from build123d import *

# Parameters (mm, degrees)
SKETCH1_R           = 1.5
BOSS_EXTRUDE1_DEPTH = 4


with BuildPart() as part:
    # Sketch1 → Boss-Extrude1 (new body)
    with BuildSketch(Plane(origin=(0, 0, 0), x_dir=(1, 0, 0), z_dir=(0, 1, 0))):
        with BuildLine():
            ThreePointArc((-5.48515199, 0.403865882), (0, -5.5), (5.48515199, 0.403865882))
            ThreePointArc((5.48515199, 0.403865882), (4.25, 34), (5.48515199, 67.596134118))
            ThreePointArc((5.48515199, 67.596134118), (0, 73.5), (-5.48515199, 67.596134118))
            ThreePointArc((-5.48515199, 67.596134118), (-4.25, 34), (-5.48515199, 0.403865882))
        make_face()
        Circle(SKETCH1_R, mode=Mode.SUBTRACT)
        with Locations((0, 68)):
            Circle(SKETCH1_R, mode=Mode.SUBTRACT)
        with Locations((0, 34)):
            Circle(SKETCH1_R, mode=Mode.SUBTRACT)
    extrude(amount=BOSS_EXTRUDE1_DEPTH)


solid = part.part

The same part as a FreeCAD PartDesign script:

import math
import FreeCAD as App
import Part
import Sketcher
Q = App.Units.Quantity

doc = App.newDocument("Part")
params = doc.addObject("Spreadsheet::Sheet", "Params")
for row, (alias, value) in enumerate([
    ("sketch1_diameter", "3 mm"),
    ("sketch1_radius", "5.5 mm"),
    ("pad1_length", "4 mm"),
], start=1):
    params.set(f"A{row}", alias)
    params.set(f"B{row}", "=" + value)
    params.setAlias(f"B{row}", alias)

body = doc.addObject("PartDesign::Body", "Body")

sketch1 = doc.addObject("Sketcher::SketchObject", "Sketch")
body.addObject(sketch1)
sketch1.AttachmentSupport = (doc.XZ_Plane, [""])
sketch1.MapMode = "FlatFace"
sketch1.addGeometry([
    Part.ArcOfCircle(Part.Circle(App.Vector(0, 0, 0), App.Vector(0, 0, 1), 5.5), math.radians(-4), math.radians(184)),
    Part.ArcOfCircle(Part.Circle(App.Vector(461.8, -34, 0), App.Vector(0, 0, 1), 457.5), math.radians(175.79), math.radians(184.21)),
    Part.ArcOfCircle(Part.Circle(App.Vector(0, -68, 0), App.Vector(0, 0, 1), 5.5), math.radians(176), math.radians(364)),
    Part.ArcOfCircle(Part.Circle(App.Vector(-461.8, -34, 0), App.Vector(0, 0, 1), 457.5), math.radians(-4.21), math.radians(4.21)),
    Part.Circle(App.Vector(0, 0, 0), App.Vector(0, 0, 1), 1.5),
    Part.Circle(App.Vector(0, -34, 0), App.Vector(0, 0, 1), 1.5),
    Part.Circle(App.Vector(0, -68, 0), App.Vector(0, 0, 1), 1.5),
], False)
sketch1.addConstraint([
    Sketcher.Constraint("Tangent", 0, 1, 1, 1),
    Sketcher.Constraint("Tangent", 1, 2, 2, 2),
    Sketcher.Constraint("Tangent", 2, 1, 3, 1),
    Sketcher.Constraint("Tangent", 3, 2, 0, 2),
    Sketcher.Constraint("Coincident", 0, 3, -1, 1),
    Sketcher.Constraint("Coincident", 4, 3, -1, 1),
    Sketcher.Constraint("Coincident", 6, 3, 2, 3),
    Sketcher.Constraint("Equal", 0, 2),
    Sketcher.Constraint("Equal", 1, 3),
    Sketcher.Constraint("Equal", 4, 5),
    Sketcher.Constraint("Equal", 5, 6),
    Sketcher.Constraint("PointOnObject", 2, 3, -2),
    Sketcher.Constraint("PointOnObject", 5, 3, -2),
    Sketcher.Constraint("Horizontal", 3, 3, 5, 3),
    Sketcher.Constraint("Diameter", 4, Q("3 mm")),
    Sketcher.Constraint("Radius", 0, Q("5.5 mm")),
    Sketcher.Constraint("DistanceY", 1, 3, -1, 1, Q("34 mm")),
    Sketcher.Constraint("Radius", 1, Q("457.525 mm")),
])
sketch1.setExpression("Constraints[14]", "Params.sketch1_diameter")
sketch1.setExpression("Constraints[15]", "Params.sketch1_radius")
pad1 = doc.addObject("PartDesign::Pad", "Pad")
body.addObject(pad1)
pad1.Profile = sketch1
pad1.setExpression("Length", "Params.pad1_length")
pad1.Reversed = True

doc.recompute()
